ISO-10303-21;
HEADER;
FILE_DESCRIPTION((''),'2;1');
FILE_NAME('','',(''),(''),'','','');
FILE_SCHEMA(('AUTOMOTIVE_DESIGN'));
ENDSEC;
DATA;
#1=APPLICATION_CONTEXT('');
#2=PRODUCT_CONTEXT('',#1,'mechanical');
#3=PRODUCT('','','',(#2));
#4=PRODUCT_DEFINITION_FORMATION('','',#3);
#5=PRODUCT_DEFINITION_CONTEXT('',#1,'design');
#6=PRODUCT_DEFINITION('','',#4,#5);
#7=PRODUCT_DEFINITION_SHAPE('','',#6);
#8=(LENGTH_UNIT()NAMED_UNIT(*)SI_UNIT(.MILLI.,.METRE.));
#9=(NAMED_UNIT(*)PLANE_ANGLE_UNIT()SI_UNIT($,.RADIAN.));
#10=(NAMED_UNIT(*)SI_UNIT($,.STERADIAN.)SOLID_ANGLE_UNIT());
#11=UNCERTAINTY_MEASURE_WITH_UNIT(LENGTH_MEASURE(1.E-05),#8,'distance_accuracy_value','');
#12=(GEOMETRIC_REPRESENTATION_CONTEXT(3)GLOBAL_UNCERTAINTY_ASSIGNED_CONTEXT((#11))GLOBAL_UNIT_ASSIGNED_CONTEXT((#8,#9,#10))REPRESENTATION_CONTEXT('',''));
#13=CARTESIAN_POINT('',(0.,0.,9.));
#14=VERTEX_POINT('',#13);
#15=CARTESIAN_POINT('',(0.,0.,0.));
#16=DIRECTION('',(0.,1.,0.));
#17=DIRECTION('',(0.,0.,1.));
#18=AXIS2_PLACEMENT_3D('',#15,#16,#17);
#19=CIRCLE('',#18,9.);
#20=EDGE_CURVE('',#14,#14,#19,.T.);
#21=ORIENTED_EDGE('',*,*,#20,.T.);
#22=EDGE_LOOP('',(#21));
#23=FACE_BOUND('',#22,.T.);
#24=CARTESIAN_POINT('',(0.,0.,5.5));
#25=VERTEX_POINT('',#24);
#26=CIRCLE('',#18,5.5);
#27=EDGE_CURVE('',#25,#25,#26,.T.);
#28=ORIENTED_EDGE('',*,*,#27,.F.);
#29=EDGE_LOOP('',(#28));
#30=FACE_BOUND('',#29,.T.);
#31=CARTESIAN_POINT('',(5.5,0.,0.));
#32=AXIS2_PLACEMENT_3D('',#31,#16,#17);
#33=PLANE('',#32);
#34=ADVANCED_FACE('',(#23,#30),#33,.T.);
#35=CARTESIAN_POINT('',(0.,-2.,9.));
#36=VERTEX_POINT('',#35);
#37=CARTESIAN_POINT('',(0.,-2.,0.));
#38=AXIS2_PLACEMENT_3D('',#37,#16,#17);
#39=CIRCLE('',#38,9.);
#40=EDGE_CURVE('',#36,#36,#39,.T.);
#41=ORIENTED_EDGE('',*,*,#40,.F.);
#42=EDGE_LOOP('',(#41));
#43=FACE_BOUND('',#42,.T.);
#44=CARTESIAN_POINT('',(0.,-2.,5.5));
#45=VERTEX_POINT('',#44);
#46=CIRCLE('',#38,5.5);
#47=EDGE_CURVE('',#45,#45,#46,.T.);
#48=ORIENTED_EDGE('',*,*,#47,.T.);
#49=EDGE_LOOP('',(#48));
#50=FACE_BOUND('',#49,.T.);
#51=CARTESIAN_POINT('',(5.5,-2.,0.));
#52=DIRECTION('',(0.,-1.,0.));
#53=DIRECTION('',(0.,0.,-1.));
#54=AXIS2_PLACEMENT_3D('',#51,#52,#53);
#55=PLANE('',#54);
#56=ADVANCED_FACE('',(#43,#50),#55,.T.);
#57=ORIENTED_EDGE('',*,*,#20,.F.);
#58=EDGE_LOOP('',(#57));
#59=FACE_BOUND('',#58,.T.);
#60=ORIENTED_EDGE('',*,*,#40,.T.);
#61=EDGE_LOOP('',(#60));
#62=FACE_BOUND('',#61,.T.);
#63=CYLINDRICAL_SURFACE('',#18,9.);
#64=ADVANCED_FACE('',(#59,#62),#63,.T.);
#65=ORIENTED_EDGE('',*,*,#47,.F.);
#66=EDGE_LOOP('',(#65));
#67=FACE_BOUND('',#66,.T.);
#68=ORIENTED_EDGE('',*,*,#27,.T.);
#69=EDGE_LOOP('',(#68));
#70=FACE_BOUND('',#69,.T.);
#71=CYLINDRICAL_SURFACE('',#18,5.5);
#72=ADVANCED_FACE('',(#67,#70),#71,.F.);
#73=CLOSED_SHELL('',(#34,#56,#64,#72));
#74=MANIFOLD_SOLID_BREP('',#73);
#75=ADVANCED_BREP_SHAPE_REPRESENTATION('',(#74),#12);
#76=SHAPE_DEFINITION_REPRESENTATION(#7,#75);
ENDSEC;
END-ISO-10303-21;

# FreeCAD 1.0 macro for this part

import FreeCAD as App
import Part
import Sketcher

doc = App.newDocument("Part")
body = doc.addObject("PartDesign::Body", "Body")

# Sketch on XY plane
sketch1 = body.newObject("Sketcher::SketchObject", "Sketch")
sketch1.AttachmentSupport = (doc.getObject("XY_Plane"), [""])
sketch1.MapMode = "FlatFace"
sketch1.addGeometry(Part.LineSegment(App.Vector(5.5, -2, 0), App.Vector(5.5, 0, 0)), False)
sketch1.addGeometry(Part.LineSegment(App.Vector(5.5, 0, 0), App.Vector(9, 0, 0)), False)
sketch1.addGeometry(Part.LineSegment(App.Vector(9, 0, 0), App.Vector(9, -2, 0)), False)
sketch1.addGeometry(Part.LineSegment(App.Vector(9, -2, 0), App.Vector(5.5, -2, 0)), False)
sketch1.addConstraint(Sketcher.Constraint("Coincident", 0, 2, 1, 1))
sketch1.addConstraint(Sketcher.Constraint("Coincident", 1, 2, 2, 1))
sketch1.addConstraint(Sketcher.Constraint("Coincident", 2, 2, 3, 1))
sketch1.addConstraint(Sketcher.Constraint("Coincident", 3, 2, 0, 1))
sketch1.addConstraint(Sketcher.Constraint("Vertical", 0))
sketch1.addConstraint(Sketcher.Constraint("Horizontal", 1))
sketch1.addConstraint(Sketcher.Constraint("Vertical", 2))
sketch1.addConstraint(Sketcher.Constraint("Horizontal", 3))
sketch1.addConstraint(Sketcher.Constraint("PointOnObject", 0, 2, -1))
sketch1.addConstraint(Sketcher.Constraint("DistanceY", 0, 1, 0, 2, 2.0))
sketch1.addConstraint(Sketcher.Constraint("DistanceX", 1, 1, 1, 2, 3.5))
sketch1.addConstraint(Sketcher.Constraint("DistanceX", -1, 1, 1, 2, 9.0))
revolution = body.newObject("PartDesign::Revolution", "Revolution")
revolution.Profile = sketch1
revolution.ReferenceAxis = (sketch1, ["V_Axis"])
revolution.Angle = 360

doc.recompute()
